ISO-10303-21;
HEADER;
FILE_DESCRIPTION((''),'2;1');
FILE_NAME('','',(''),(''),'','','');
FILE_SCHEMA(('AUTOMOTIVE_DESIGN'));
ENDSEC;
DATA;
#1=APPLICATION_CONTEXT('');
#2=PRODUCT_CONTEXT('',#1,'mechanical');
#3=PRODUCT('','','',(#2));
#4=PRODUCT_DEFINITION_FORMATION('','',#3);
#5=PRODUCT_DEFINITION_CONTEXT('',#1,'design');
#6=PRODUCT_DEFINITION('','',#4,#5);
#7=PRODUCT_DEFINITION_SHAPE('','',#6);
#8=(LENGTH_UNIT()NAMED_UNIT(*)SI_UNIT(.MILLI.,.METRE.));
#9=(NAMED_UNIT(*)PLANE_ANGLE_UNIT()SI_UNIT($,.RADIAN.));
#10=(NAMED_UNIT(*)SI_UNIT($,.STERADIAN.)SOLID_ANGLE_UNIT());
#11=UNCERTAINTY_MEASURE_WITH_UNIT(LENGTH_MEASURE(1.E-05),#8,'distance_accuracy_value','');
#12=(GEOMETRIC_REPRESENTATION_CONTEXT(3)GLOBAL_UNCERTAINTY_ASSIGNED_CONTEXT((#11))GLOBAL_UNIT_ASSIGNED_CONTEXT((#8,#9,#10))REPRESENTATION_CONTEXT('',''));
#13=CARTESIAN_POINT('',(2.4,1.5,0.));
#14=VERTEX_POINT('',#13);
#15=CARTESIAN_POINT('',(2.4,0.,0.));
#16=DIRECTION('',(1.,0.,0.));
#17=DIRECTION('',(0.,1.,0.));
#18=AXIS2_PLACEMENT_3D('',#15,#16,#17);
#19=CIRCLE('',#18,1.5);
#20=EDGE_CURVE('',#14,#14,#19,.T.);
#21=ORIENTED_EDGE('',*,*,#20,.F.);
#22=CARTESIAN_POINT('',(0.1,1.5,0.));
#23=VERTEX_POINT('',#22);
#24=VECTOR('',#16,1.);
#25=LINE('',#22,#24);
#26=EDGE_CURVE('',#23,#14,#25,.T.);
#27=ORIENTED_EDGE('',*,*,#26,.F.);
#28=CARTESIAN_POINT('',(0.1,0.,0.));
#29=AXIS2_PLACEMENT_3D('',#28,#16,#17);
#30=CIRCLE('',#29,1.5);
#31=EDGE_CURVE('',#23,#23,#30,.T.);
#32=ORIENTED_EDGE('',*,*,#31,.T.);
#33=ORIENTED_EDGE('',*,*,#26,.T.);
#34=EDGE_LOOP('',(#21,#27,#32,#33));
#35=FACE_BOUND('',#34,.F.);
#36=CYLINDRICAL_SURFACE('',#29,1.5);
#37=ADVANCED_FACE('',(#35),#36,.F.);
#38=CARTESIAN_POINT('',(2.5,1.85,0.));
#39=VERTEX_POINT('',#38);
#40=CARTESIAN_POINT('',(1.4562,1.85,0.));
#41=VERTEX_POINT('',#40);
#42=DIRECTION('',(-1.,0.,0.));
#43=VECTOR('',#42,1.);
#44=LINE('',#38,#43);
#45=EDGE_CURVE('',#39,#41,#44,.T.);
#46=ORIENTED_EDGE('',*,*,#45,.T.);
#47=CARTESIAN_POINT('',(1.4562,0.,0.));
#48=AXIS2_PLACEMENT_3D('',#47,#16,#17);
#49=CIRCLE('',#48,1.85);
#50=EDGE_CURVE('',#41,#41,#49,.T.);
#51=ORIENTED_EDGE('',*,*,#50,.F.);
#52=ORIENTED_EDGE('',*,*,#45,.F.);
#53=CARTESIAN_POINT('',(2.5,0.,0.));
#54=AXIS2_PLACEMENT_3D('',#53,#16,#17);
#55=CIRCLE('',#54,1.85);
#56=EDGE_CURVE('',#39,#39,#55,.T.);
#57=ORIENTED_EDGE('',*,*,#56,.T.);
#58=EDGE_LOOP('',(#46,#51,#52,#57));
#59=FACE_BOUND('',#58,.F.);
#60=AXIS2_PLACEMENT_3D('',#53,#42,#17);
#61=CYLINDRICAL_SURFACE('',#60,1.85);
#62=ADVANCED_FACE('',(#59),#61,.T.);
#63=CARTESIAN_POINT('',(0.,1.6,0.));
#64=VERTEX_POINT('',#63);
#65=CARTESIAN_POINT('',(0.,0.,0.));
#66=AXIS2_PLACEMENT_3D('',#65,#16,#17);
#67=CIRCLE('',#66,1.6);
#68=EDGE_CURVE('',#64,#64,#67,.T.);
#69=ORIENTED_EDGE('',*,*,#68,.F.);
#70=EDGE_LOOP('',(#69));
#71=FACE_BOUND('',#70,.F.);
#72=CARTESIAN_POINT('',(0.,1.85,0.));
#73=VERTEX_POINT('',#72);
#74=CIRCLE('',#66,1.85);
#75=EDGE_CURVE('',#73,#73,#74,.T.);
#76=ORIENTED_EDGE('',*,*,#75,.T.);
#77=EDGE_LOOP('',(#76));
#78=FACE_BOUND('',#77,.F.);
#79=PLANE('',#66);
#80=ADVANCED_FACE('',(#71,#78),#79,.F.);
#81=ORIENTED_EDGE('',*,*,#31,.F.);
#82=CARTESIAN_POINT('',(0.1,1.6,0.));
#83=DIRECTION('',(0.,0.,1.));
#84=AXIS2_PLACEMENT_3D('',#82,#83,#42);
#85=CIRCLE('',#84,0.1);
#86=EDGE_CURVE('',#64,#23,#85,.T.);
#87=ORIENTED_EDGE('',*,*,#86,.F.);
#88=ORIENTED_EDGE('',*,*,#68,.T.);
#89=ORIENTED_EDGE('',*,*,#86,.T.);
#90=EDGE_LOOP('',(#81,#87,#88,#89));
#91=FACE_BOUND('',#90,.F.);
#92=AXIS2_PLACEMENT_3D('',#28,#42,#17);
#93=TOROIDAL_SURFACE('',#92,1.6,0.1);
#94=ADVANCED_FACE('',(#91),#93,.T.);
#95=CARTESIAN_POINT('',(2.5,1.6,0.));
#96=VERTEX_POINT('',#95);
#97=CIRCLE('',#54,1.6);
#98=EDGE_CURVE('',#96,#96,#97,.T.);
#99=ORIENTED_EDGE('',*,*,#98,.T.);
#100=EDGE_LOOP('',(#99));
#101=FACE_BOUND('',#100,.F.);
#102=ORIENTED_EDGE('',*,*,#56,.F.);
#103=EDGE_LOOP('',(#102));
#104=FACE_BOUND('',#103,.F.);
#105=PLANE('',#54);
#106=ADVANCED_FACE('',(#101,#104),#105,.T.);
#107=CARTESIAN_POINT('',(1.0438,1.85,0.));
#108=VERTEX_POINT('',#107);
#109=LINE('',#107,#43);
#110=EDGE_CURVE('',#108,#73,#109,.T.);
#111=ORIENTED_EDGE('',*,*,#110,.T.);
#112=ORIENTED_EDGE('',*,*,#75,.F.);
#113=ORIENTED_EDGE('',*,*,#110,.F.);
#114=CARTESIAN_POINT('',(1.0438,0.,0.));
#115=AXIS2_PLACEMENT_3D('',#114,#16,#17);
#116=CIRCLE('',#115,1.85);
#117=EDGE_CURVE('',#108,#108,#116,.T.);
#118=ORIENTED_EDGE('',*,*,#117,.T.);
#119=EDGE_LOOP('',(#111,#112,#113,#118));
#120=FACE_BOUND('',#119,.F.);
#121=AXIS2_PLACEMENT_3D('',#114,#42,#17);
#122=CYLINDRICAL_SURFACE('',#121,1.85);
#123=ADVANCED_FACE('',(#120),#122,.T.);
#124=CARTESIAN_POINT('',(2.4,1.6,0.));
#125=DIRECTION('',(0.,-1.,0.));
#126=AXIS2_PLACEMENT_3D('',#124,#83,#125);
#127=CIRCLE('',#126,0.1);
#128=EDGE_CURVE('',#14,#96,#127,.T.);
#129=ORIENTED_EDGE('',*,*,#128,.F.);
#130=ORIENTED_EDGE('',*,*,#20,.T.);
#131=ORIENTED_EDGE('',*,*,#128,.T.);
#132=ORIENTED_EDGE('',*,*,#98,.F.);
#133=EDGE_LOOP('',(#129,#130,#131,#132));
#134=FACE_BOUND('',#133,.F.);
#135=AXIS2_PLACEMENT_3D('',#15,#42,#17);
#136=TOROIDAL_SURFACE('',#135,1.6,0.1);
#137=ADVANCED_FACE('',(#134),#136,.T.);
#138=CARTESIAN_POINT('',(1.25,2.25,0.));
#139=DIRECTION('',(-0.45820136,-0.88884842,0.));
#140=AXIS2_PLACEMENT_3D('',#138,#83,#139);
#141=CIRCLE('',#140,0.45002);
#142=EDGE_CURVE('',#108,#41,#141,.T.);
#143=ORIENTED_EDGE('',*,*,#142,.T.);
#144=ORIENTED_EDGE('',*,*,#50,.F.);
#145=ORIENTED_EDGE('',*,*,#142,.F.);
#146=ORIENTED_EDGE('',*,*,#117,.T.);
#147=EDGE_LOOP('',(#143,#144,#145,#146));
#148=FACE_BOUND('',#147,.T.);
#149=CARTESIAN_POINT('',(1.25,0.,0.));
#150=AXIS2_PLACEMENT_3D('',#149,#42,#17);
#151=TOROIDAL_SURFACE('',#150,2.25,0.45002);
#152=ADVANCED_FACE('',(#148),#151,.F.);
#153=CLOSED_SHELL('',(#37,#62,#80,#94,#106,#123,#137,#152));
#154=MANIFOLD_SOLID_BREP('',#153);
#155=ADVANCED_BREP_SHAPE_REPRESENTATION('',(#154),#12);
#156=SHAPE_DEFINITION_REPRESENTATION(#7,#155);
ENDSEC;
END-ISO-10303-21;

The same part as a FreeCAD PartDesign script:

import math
import FreeCAD as App
import Part
import Sketcher

V = App.Vector
Q = App.Units.Quantity

doc = App.newDocument("Part")
body = doc.addObject("PartDesign::Body", "Body")

sketch1 = body.newObject("Sketcher::SketchObject", "Sketch")
sketch1.AttachmentSupport = (doc.getObject("XY_Plane"), [""])
sketch1.MapMode = "FlatFace"
sketch1.addGeometry([
    Part.LineSegment(V(0, 1.85, 0), V(0, 1.6, 0)),
    Part.ArcOfCircle(Part.Circle(V(0.1, 1.6, 0), V(0, 0, 1), 0.1), math.radians(180), math.radians(270)),
    Part.LineSegment(V(0.1, 1.5, 0), V(2.4, 1.5, 0)),
    Part.ArcOfCircle(Part.Circle(V(2.4, 1.6, 0), V(0, 0, 1), 0.1), math.radians(-90), math.radians(0)),
    Part.LineSegment(V(2.5, 1.6, 0), V(2.5, 1.85, 0)),
    Part.LineSegment(V(2.5, 1.85, 0), V(1.4562, 1.85, 0)),
    Part.ArcOfCircle(Part.Circle(V(1.25, 2.25, 0), V(0, 0, 1), 0.45002), math.radians(-117.271105), math.radians(-62.728895)),
    Part.LineSegment(V(1.0438, 1.85, 0), V(0, 1.85, 0)),
], False)
sketch1.addConstraint([
    Sketcher.Constraint("Tangent", 0, 2, 1, 1),
    Sketcher.Constraint("Tangent", 1, 2, 2, 1),
    Sketcher.Constraint("Tangent", 2, 2, 3, 1),
    Sketcher.Constraint("Tangent", 3, 2, 4, 1),
    Sketcher.Constraint("Coincident", 4, 2, 5, 1),
    Sketcher.Constraint("Coincident", 5, 2, 6, 2),
    Sketcher.Constraint("Coincident", 6, 1, 7, 1),
    Sketcher.Constraint("Coincident", 7, 2, 0, 1),
    Sketcher.Constraint("Vertical", 0),
    Sketcher.Constraint("Horizontal", 2),
    Sketcher.Constraint("Vertical", 4),
    Sketcher.Constraint("Horizontal", 5),
    Sketcher.Constraint("Horizontal", 7),
    Sketcher.Constraint("Equal", 1, 3),
    Sketcher.Constraint("PointOnObject", 0, 2, -2),
    Sketcher.Constraint("Horizontal", 5, 2, 6, 1),
    Sketcher.Constraint("Equal", 5, 7),
    Sketcher.Constraint("Radius", 1, Q("0.1 mm")),
    Sketcher.Constraint("Radius", 6, Q("0.45 mm")),
    Sketcher.Constraint("DistanceX", 2, 1, 2, 2, Q("2.3 mm")),
    Sketcher.Constraint("DistanceY", 0, 2, 0, 1, Q("0.25 mm")),
    Sketcher.Constraint("DistanceY", -1, 1, 1, 3, Q("1.6 mm")),
    Sketcher.Constraint("DistanceY", 4, 2, 6, 3, Q("0.4 mm")),
])
revolution = body.newObject("PartDesign::Revolution", "Revolution")
revolution.Profile = sketch1
revolution.ReferenceAxis = (sketch1, ["H_Axis"])
revolution.Angle = 360

doc.recompute()
